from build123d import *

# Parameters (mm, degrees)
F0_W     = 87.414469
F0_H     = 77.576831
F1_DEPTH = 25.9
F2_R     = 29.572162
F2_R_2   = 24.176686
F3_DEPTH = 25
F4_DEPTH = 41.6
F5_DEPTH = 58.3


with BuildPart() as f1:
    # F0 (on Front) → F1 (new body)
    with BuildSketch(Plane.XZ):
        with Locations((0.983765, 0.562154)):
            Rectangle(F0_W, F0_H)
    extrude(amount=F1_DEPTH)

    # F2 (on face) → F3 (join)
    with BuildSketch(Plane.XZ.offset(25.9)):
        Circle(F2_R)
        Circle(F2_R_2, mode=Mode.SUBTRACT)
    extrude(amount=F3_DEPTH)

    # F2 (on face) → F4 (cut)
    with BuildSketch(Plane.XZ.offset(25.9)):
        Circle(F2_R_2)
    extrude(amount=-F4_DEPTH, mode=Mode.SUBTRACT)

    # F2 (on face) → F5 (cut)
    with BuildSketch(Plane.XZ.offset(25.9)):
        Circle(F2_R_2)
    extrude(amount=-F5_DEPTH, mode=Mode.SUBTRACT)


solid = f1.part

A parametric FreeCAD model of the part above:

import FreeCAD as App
import Part
import Sketcher
from FreeCAD import Vector


def add_polygon(sketch, points):
    """Adds a closed chain of lines whose ends are joined by coincident constraints."""
    first, n = sketch.GeometryCount, len(points)
    for a, b in zip(points, points[1:] + points[:1]):
        sketch.addGeometry(Part.LineSegment(App.Vector(*a, 0), App.Vector(*b, 0)), False)
    for i in range(n):
        sketch.addConstraint(Sketcher.Constraint("Coincident", first + i, 2, first + (i + 1) % n, 1))

doc = App.newDocument("Part")
body = doc.addObject("PartDesign::Body", "Body")

sketch1 = body.newObject("Sketcher::SketchObject", "Sketch")
sketch1.AttachmentSupport = (doc.getObject("XZ_Plane"), [""])
sketch1.MapMode = "FlatFace"
add_polygon(sketch1, [(-42.72347, 39.350569), (-42.72347, -38.226261), (44.690999, -38.226261), (44.690999, 39.350569)])
sketch1.addConstraint(Sketcher.Constraint("Vertical", 0))
sketch1.addConstraint(Sketcher.Constraint("Horizontal", 1))
sketch1.addConstraint(Sketcher.Constraint("Vertical", 2))
sketch1.addConstraint(Sketcher.Constraint("Horizontal", 3))
sketch1.addConstraint(Sketcher.Constraint("DistanceX", -1, 1, 1, 2, 44.690999))
sketch1.addConstraint(Sketcher.Constraint("DistanceX", 1, 1, 1, 2, 87.414469))
sketch1.addConstraint(Sketcher.Constraint("DistanceY", 0, 2, 0, 1, 77.576831))
sketch1.addConstraint(Sketcher.Constraint("DistanceY", 0, 2, -1, 1, 38.226261))
pad1 = body.newObject("PartDesign::Pad", "Pad")
pad1.Profile = sketch1
pad1.Length = 25.9

sketch2 = body.newObject("Sketcher::SketchObject", "Sketch001")
sketch2.AttachmentSupport = (doc.getObject("XZ_Plane"), [""])
sketch2.MapMode = "FlatFace"
sketch2.AttachmentOffset = App.Placement(Vector(0, 0, 25.9), App.Rotation())
sketch2.addGeometry(Part.Circle(Vector(0, 0, 0), Vector(0, 0, 1), 29.572162), False)
sketch2.addGeometry(Part.Circle(Vector(0, 0, 0), Vector(0, 0, 1), 24.176686), False)
sketch2.addConstraint(Sketcher.Constraint("Coincident", 0, 3, -1, 1))
sketch2.addConstraint(Sketcher.Constraint("Coincident", 1, 3, -1, 1))
sketch2.addConstraint(Sketcher.Constraint("Diameter", 0, 59.144324))
sketch2.addConstraint(Sketcher.Constraint("Diameter", 1, 48.353372))
pad2 = body.newObject("PartDesign::Pad", "Pad001")
pad2.Profile = sketch2
pad2.Length = 25

sketch3 = body.newObject("Sketcher::SketchObject", "Sketch002")
sketch3.AttachmentSupport = (doc.getObject("XZ_Plane"), [""])
sketch3.MapMode = "FlatFace"
sketch3.AttachmentOffset = App.Placement(Vector(0, 0, 25.9), App.Rotation())
sketch3.addGeometry(Part.Circle(Vector(0, 0, 0), Vector(0, 0, 1), 24.176686), False)
sketch3.addConstraint(Sketcher.Constraint("Coincident", 0, 3, -1, 1))
sketch3.addConstraint(Sketcher.Constraint("Diameter", 0, 48.353372))
pocket1 = body.newObject("PartDesign::Pocket", "Pocket")
pocket1.Profile = sketch3
pocket1.Length = 41.6

sketch4 = body.newObject("Sketcher::SketchObject", "Sketch003")
sketch4.AttachmentSupport = (doc.getObject("XZ_Plane"), [""])
sketch4.MapMode = "FlatFace"
sketch4.AttachmentOffset = App.Placement(Vector(0, 0, 25.9), App.Rotation())
sketch4.addGeometry(Part.Circle(Vector(0, 0, 0), Vector(0, 0, 1), 24.176686), False)
sketch4.addConstraint(Sketcher.Constraint("Coincident", 0, 3, -1, 1))
sketch4.addConstraint(Sketcher.Constraint("Diameter", 0, 48.353372))
pocket2 = body.newObject("PartDesign::Pocket", "Pocket001")
pocket2.Profile = sketch4
pocket2.Length = 58.3

doc.recompute()
